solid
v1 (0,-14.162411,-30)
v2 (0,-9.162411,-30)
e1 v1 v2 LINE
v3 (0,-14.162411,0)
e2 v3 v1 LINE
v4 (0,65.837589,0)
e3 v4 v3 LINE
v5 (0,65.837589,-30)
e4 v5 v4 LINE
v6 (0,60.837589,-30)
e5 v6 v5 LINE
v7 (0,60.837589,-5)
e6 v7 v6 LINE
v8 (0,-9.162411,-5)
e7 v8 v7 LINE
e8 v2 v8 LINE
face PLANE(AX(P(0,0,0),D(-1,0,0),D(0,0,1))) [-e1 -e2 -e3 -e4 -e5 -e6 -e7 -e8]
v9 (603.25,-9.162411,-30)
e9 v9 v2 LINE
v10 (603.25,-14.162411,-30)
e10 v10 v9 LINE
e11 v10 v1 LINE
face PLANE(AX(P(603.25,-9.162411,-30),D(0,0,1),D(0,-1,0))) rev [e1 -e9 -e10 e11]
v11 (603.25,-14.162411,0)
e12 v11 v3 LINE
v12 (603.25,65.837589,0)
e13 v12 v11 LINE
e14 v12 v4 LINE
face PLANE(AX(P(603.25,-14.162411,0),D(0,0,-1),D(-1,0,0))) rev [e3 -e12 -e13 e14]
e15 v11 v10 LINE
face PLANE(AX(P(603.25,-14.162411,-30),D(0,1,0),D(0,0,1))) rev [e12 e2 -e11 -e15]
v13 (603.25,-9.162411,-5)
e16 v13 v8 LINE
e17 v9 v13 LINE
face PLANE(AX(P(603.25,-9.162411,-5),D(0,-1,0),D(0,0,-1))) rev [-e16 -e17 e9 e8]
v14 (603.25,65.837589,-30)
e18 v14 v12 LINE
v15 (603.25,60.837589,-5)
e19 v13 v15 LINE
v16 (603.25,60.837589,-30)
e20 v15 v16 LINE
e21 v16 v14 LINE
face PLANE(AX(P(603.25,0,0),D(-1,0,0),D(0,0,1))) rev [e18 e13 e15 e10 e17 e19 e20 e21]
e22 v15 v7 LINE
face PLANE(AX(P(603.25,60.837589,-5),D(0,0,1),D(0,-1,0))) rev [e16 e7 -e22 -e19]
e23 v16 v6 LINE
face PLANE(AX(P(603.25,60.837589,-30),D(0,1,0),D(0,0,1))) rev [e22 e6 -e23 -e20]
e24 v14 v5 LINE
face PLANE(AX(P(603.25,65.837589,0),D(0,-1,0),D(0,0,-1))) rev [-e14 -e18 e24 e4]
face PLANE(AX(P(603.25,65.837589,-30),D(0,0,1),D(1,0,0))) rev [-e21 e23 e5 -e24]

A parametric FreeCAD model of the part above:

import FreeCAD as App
import Part
import Sketcher
from FreeCAD import Vector
Q = App.Units.Quantity

doc = App.newDocument("Part")
params = doc.addObject("Spreadsheet::Sheet", "Params")
for row, (alias, value) in enumerate([
    ("sketch1_width", "80 mm"),
    ("sketch1_width2", "5 mm"),
    ("sketch1_height", "30 mm"),
    ("sketch1_height2", "25 mm"),
    ("pad1_length", "603.25 mm"),
], start=1):
    params.set(f"A{row}", alias)
    params.set(f"B{row}", "=" + value)
    params.setAlias(f"B{row}", alias)

body = doc.addObject("PartDesign::Body", "Body")

# Sketch on YZ plane
sketch1 = body.newObject("Sketcher::SketchObject", "Sketch")
sketch1.AttachmentSupport = (doc.getObject("YZ_Plane"), [""])
sketch1.MapMode = "FlatFace"
sketch1.addGeometry(Part.LineSegment(Vector(65.837589, -30, 0), Vector(65.837589, 0, 0)), False)
sketch1.addGeometry(Part.LineSegment(Vector(65.837589, 0, 0), Vector(-14.162411, 0, 0)), False)
sketch1.addGeometry(Part.LineSegment(Vector(-14.162411, 0, 0), Vector(-14.162411, -30, 0)), False)
sketch1.addGeometry(Part.LineSegment(Vector(-14.162411, -30, 0), Vector(-9.162411, -30, 0)), False)
sketch1.addGeometry(Part.LineSegment(Vector(-9.162411, -30, 0), Vector(-9.162411, -5, 0)), False)
sketch1.addGeometry(Part.LineSegment(Vector(-9.162411, -5, 0), Vector(60.837589, -5, 0)), False)
sketch1.addGeometry(Part.LineSegment(Vector(60.837589, -5, 0), Vector(60.837589, -30, 0)), False)
sketch1.addGeometry(Part.LineSegment(Vector(60.837589, -30, 0), Vector(65.837589, -30, 0)), False)
sketch1.addConstraint(Sketcher.Constraint("Coincident", 0, 2, 1, 1))
sketch1.addConstraint(Sketcher.Constraint("Coincident", 1, 2, 2, 1))
sketch1.addConstraint(Sketcher.Constraint("Coincident", 2, 2, 3, 1))
sketch1.addConstraint(Sketcher.Constraint("Coincident", 3, 2, 4, 1))
sketch1.addConstraint(Sketcher.Constraint("Coincident", 4, 2, 5, 1))
sketch1.addConstraint(Sketcher.Constraint("Coincident", 5, 2, 6, 1))
sketch1.addConstraint(Sketcher.Constraint("Coincident", 6, 2, 7, 1))
sketch1.addConstraint(Sketcher.Constraint("Coincident", 7, 2, 0, 1))
sketch1.addConstraint(Sketcher.Constraint("Vertical", 0))
sketch1.addConstraint(Sketcher.Constraint("Horizontal", 1))
sketch1.addConstraint(Sketcher.Constraint("Vertical", 2))
sketch1.addConstraint(Sketcher.Constraint("Horizontal", 3))
sketch1.addConstraint(Sketcher.Constraint("Vertical", 4))
sketch1.addConstraint(Sketcher.Constraint("Horizontal", 5))
sketch1.addConstraint(Sketcher.Constraint("Vertical", 6))
sketch1.addConstraint(Sketcher.Constraint("Horizontal", 7))
sketch1.addConstraint(Sketcher.Constraint("PointOnObject", 0, 2, -1))
sketch1.addConstraint(Sketcher.Constraint("Horizontal", 3, 2, 6, 2))
sketch1.addConstraint(Sketcher.Constraint("Equal", 3, 7))
sketch1.addConstraint(Sketcher.Constraint("DistanceX", 1, 2, 1, 1, Q("80 mm")))
sketch1.addConstraint(Sketcher.Constraint("DistanceX", 3, 1, 3, 2, Q("5 mm")))
sketch1.addConstraint(Sketcher.Constraint("DistanceY", 0, 1, 0, 2, Q("30 mm")))
sketch1.addConstraint(Sketcher.Constraint("DistanceY", 4, 1, 4, 2, Q("25 mm")))
sketch1.addConstraint(Sketcher.Constraint("DistanceX", -1, 1, 0, 2, Q("65.837589 mm")))
sketch1.setExpression("Constraints[19]", "Params.sketch1_width")
sketch1.setExpression("Constraints[20]", "Params.sketch1_width2")
sketch1.setExpression("Constraints[21]", "Params.sketch1_height")
sketch1.setExpression("Constraints[22]", "Params.sketch1_height2")
pad1 = body.newObject("PartDesign::Pad", "Pad")
pad1.Profile = sketch1
pad1.setExpression("Length", "Params.pad1_length")

doc.recompute()
